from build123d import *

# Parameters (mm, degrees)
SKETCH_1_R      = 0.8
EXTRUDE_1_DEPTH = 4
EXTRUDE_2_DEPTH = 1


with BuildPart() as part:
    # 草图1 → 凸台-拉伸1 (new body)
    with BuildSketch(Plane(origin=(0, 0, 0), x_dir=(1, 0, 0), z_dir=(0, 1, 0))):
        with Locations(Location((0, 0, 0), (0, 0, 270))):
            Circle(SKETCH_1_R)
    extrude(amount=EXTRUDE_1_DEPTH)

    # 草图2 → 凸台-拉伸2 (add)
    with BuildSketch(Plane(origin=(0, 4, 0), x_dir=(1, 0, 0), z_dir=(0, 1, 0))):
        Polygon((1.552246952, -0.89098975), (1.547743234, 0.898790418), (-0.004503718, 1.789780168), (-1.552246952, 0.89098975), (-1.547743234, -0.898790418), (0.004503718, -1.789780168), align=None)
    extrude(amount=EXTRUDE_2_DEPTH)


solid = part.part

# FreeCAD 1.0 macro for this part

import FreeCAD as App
import Part
import Sketcher


def add_polygon(sketch, points):
    """Adds a closed chain of lines whose ends are joined by coincident constraints."""
    first, n = sketch.GeometryCount, len(points)
    for a, b in zip(points, points[1:] + points[:1]):
        sketch.addGeometry(Part.LineSegment(App.Vector(*a, 0), App.Vector(*b, 0)), False)
    for i in range(n):
        sketch.addConstraint(Sketcher.Constraint("Coincident", first + i, 2, first + (i + 1) % n, 1))

doc = App.newDocument("Part")
body = doc.addObject("PartDesign::Body", "Body")

# Sketch on XZ plane
sketch1 = body.newObject("Sketcher::SketchObject", "Sketch")
sketch1.AttachmentSupport = (doc.getObject("XZ_Plane"), [""])
sketch1.MapMode = "FlatFace"
sketch1.addGeometry(Part.Circle(App.Vector(0, 0, 0), App.Vector(0, 0, 1), 0.8), False)
sketch1.addConstraint([
    Sketcher.Constraint("Coincident", 0, 3, -1, 1),
    Sketcher.Constraint("Diameter", 0, 1.6),
])
pad1 = body.newObject("PartDesign::Pad", "Pad")
pad1.Profile = sketch1
pad1.Length = 4
pad1.Reversed = True

# Sketch on XZ plane
sketch2 = body.newObject("Sketcher::SketchObject", "Sketch001")
sketch2.AttachmentSupport = (doc.getObject("XZ_Plane"), [""])
sketch2.MapMode = "FlatFace"
sketch2.AttachmentOffset = App.Placement(App.Vector(0, 0, -4), App.Rotation())
add_polygon(sketch2, [(1.552247, 0.89099), (1.547743, -0.89879), (-0.004504, -1.78978), (-1.552247, -0.89099), (-1.547743, 0.89879), (0.004504, 1.78978)])  # lines 0-5
sketch2.addConstraint([
    Sketcher.Constraint("DistanceY", 0, 2, 2, 2, 0.007801),
    Sketcher.Constraint("DistanceY", 5, 2, 3, 2, 0.007801),
    Sketcher.Constraint("DistanceY", 0, 2, -1, 1, 0.89879),
    Sketcher.Constraint("DistanceY", 1, 2, -1, 1, 1.78978),
    Sketcher.Constraint("DistanceY", -1, 1, 3, 2, 0.89879),
    Sketcher.Constraint("DistanceY", -1, 1, 4, 2, 1.78978),
    Sketcher.Constraint("DistanceX", 2, 2, 0, 2, 3.09999),
    Sketcher.Constraint("DistanceX", 3, 2, 1, 2, 1.54324),
    Sketcher.Constraint("DistanceX", 4, 2, 0, 2, 1.54324),
    Sketcher.Constraint("DistanceX", 1, 2, 5, 2, 1.556751),
    Sketcher.Constraint("Distance", 1, 1.789786),
    Sketcher.Constraint("DistanceX", -1, 1, 0, 2, 1.547743),
])
pad2 = body.newObject("PartDesign::Pad", "Pad001")
pad2.Profile = sketch2
pad2.Length = 1
pad2.Reversed = True

doc.recompute()
